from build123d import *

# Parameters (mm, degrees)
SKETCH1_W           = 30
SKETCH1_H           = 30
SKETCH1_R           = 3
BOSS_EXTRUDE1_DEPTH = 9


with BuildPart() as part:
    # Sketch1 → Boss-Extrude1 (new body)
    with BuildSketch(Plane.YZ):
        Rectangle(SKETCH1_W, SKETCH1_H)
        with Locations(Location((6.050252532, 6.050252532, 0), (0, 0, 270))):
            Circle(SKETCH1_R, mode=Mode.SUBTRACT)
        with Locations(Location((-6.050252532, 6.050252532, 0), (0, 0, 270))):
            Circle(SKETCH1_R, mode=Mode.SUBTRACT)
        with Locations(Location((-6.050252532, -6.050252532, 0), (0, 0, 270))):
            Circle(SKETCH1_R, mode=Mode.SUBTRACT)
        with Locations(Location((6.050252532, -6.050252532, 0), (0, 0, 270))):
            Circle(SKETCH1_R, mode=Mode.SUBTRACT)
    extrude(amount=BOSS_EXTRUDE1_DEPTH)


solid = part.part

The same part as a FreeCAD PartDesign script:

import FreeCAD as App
import Part
import Sketcher


def add_polygon(sketch, points):
    """Adds a closed chain of lines whose ends are joined by coincident constraints."""
    first, n = sketch.GeometryCount, len(points)
    for a, b in zip(points, points[1:] + points[:1]):
        sketch.addGeometry(Part.LineSegment(App.Vector(*a, 0), App.Vector(*b, 0)), False)
    for i in range(n):
        sketch.addConstraint(Sketcher.Constraint("Coincident", first + i, 2, first + (i + 1) % n, 1))

doc = App.newDocument("Part")
body = doc.addObject("PartDesign::Body", "Body")

sketch1 = body.newObject("Sketcher::SketchObject", "Sketch")
sketch1.AttachmentSupport = (doc.getObject("YZ_Plane"), [""])
sketch1.MapMode = "FlatFace"
add_polygon(sketch1, [(-15, 15), (-15, -15), (15, -15), (15, 15)])
sketch1.addGeometry(Part.Circle(App.Vector(-6.1, -6.1, 0), App.Vector(0, 0, 1), 3), False)
sketch1.addGeometry(Part.Circle(App.Vector(6.1, -6.1, 0), App.Vector(0, 0, 1), 3), False)
sketch1.addGeometry(Part.Circle(App.Vector(-6.1, 6.1, 0), App.Vector(0, 0, 1), 3), False)
sketch1.addGeometry(Part.Circle(App.Vector(6.1, 6.1, 0), App.Vector(0, 0, 1), 3), False)
sketch1.addConstraint([
    Sketcher.Constraint("Vertical", 0),
    Sketcher.Constraint("Horizontal", 1),
    Sketcher.Constraint("Vertical", 2),
    Sketcher.Constraint("Horizontal", 3),
    Sketcher.Constraint("Equal", 4, 5),
    Sketcher.Constraint("Equal", 5, 6),
    Sketcher.Constraint("Equal", 6, 7),
    Sketcher.Constraint("Symmetric", 5, 3, 6, 3, -1, 1),
    Sketcher.Constraint("Symmetric", 4, 3, 7, 3, -1, 1),
    Sketcher.Constraint("Symmetric", 0, 2, 2, 2, -1, 1),
    Sketcher.Constraint("Symmetric", 4, 3, 5, 3, -2),
    Sketcher.Constraint("Equal", 3, 0),
    Sketcher.Constraint("Diameter", 4, 6.0),
    Sketcher.Constraint("DistanceX", 1, 1, 1, 2, 30.0),
    Sketcher.Constraint("DistanceX", 4, 3, -1, 1, 6.050253),
    Sketcher.Constraint("DistanceY", 4, 3, -1, 1, 6.050253),
])
pad1 = body.newObject("PartDesign::Pad", "Pad")
pad1.Profile = sketch1
pad1.Length = 9

doc.recompute()
